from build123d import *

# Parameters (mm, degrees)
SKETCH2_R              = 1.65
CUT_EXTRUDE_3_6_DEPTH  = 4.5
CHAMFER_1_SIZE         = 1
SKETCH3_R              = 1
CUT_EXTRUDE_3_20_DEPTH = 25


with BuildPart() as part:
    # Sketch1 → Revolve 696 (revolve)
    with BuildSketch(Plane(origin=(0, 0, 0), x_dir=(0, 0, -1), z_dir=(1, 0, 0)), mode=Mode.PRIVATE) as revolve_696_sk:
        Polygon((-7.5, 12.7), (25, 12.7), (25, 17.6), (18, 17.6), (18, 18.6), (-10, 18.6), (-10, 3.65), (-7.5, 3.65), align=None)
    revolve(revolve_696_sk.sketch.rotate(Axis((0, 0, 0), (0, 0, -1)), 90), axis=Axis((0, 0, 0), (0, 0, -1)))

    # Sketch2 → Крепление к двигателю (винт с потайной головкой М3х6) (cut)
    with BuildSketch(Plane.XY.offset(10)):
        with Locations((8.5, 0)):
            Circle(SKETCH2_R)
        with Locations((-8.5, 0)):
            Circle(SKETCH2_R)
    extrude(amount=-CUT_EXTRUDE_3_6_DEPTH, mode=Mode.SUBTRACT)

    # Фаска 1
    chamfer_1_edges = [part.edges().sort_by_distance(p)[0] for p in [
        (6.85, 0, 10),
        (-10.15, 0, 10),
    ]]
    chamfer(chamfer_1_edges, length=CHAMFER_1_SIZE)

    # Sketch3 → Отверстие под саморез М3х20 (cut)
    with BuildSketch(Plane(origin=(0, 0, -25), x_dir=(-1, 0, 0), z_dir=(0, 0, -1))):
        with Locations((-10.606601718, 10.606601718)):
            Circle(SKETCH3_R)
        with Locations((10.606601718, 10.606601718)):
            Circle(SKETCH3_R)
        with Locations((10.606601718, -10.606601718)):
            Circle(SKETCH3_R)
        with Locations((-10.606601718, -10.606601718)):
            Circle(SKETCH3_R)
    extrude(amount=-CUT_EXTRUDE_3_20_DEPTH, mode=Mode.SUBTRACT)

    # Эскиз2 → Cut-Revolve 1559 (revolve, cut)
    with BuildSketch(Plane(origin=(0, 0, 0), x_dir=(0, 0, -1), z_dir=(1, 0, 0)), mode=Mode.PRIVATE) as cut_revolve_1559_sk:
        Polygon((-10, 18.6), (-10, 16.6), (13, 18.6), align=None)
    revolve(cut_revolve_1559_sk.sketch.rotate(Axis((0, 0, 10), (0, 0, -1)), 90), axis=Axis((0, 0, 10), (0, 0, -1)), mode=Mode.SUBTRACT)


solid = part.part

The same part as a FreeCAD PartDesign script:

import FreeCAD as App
import Part
import Sketcher
Q = App.Units.Quantity


def edges_at(feature, points):
    """Names of the edges that pass closest to the given points."""
    edges = feature.Shape.Edges
    near = lambda p: min(range(len(edges)), key=lambda i: edges[i].distToShape(Part.Vertex(*p))[0])
    return sorted({f"Edge{near(p) + 1}" for p in points})

doc = App.newDocument("Part")
body = doc.addObject("PartDesign::Body", "Body")

# Sketch on YZ plane
sketch1 = body.newObject("Sketcher::SketchObject", "Sketch")
sketch1.AttachmentSupport = (doc.getObject("YZ_Plane"), [""])
sketch1.MapMode = "FlatFace"
sketch1.addGeometry(Part.LineSegment(App.Vector(12.7, 7.5, 0), App.Vector(12.7, -25, 0)), False)
sketch1.addGeometry(Part.LineSegment(App.Vector(12.7, -25, 0), App.Vector(17.6, -25, 0)), False)
sketch1.addGeometry(Part.LineSegment(App.Vector(17.6, -25, 0), App.Vector(17.6, -18, 0)), False)
sketch1.addGeometry(Part.LineSegment(App.Vector(17.6, -18, 0), App.Vector(18.6, -18, 0)), False)
sketch1.addGeometry(Part.LineSegment(App.Vector(18.6, -18, 0), App.Vector(18.6, 10, 0)), False)
sketch1.addGeometry(Part.LineSegment(App.Vector(18.6, 10, 0), App.Vector(3.6, 10, 0)), False)
sketch1.addGeometry(Part.LineSegment(App.Vector(3.6, 10, 0), App.Vector(3.6, 7.5, 0)), False)
sketch1.addGeometry(Part.LineSegment(App.Vector(3.6, 7.5, 0), App.Vector(12.7, 7.5, 0)), False)
sketch1.addConstraint(Sketcher.Constraint("Coincident", 0, 2, 1, 1))
sketch1.addConstraint(Sketcher.Constraint("Coincident", 1, 2, 2, 1))
sketch1.addConstraint(Sketcher.Constraint("Coincident", 2, 2, 3, 1))
sketch1.addConstraint(Sketcher.Constraint("Coincident", 3, 2, 4, 1))
sketch1.addConstraint(Sketcher.Constraint("Coincident", 4, 2, 5, 1))
sketch1.addConstraint(Sketcher.Constraint("Coincident", 5, 2, 6, 1))
sketch1.addConstraint(Sketcher.Constraint("Coincident", 6, 2, 7, 1))
sketch1.addConstraint(Sketcher.Constraint("Coincident", 7, 2, 0, 1))
sketch1.addConstraint(Sketcher.Constraint("Vertical", 0))
sketch1.addConstraint(Sketcher.Constraint("Horizontal", 1))
sketch1.addConstraint(Sketcher.Constraint("Vertical", 2))
sketch1.addConstraint(Sketcher.Constraint("Horizontal", 3))
sketch1.addConstraint(Sketcher.Constraint("Vertical", 4))
sketch1.addConstraint(Sketcher.Constraint("Horizontal", 5))
sketch1.addConstraint(Sketcher.Constraint("Vertical", 6))
sketch1.addConstraint(Sketcher.Constraint("Horizontal", 7))
sketch1.addConstraint(Sketcher.Constraint("DistanceX", 3, 1, 3, 2, Q("1 mm")))
sketch1.addConstraint(Sketcher.Constraint("DistanceY", 2, 1, 2, 2, Q("7 mm")))
sketch1.addConstraint(Sketcher.Constraint("DistanceY", 4, 1, 4, 2, Q("28 mm")))
sketch1.addConstraint(Sketcher.Constraint("DistanceX", 1, 1, 1, 2, Q("4.9 mm")))
sketch1.addConstraint(Sketcher.Constraint("DistanceY", 0, 2, 0, 1, Q("32.5 mm")))
sketch1.addConstraint(Sketcher.Constraint("DistanceY", 0, 2, -1, 1, Q("25 mm")))
sketch1.addConstraint(Sketcher.Constraint("DistanceX", 5, 2, 5, 1, Q("14.95 mm")))
sketch1.addConstraint(Sketcher.Constraint("DistanceX", -1, 1, 0, 2, Q("12.7 mm")))
revolution = body.newObject("PartDesign::Revolution", "Revolution")
revolution.Profile = sketch1
revolution.ReferenceAxis = (sketch1, ["V_Axis"])
revolution.Angle = 360

# Sketch on XY plane
sketch2 = body.newObject("Sketcher::SketchObject", "Sketch001")
sketch2.AttachmentSupport = (doc.getObject("XY_Plane"), [""])
sketch2.MapMode = "FlatFace"
sketch2.AttachmentOffset = App.Placement(App.Vector(0, 0, 10), App.Rotation())
sketch2.addGeometry(Part.Circle(App.Vector(8.5, 0, 0), App.Vector(0, 0, 1), 1.6), False)
sketch2.addGeometry(Part.Circle(App.Vector(-8.5, 0, 0), App.Vector(0, 0, 1), 1.6), False)
sketch2.addConstraint(Sketcher.Constraint("Equal", 0, 1))
sketch2.addConstraint(Sketcher.Constraint("Symmetric", 0, 3, 1, 3, -1, 1))
sketch2.addConstraint(Sketcher.Constraint("PointOnObject", 0, 3, -1))
sketch2.addConstraint(Sketcher.Constraint("Diameter", 0, Q("3.3 mm")))
sketch2.addConstraint(Sketcher.Constraint("DistanceX", 1, 3, 0, 3, Q("17 mm")))
pocket1 = body.newObject("PartDesign::Pocket", "Pocket")
pocket1.Profile = sketch2
pocket1.Length = 4.5
doc.recompute()

chamfer = body.newObject("PartDesign::Chamfer", "Chamfer")
chamfer.Base = (pocket1, edges_at(pocket1, [(6.85, 0, 10), (-10.15, 0, 10)]))
chamfer.Size = 1

# Sketch on XY plane
sketch3 = body.newObject("Sketcher::SketchObject", "Sketch002")
sketch3.AttachmentSupport = (doc.getObject("XY_Plane"), [""])
sketch3.MapMode = "FlatFace"
sketch3.AttachmentOffset = App.Placement(App.Vector(0, 0, -25), App.Rotation())
sketch3.addGeometry(Part.Circle(App.Vector(10.6, 10.6, 0), App.Vector(0, 0, 1), 1), False)
sketch3.addGeometry(Part.Circle(App.Vector(-10.6, 10.6, 0), App.Vector(0, 0, 1), 1), False)
sketch3.addGeometry(Part.Circle(App.Vector(-10.6, -10.6, 0), App.Vector(0, 0, 1), 1), False)
sketch3.addGeometry(Part.Circle(App.Vector(10.6, -10.6, 0), App.Vector(0, 0, 1), 1), False)
sketch3.addConstraint(Sketcher.Constraint("Equal", 0, 1))
sketch3.addConstraint(Sketcher.Constraint("Equal", 1, 2))
sketch3.addConstraint(Sketcher.Constraint("Equal", 2, 3))
sketch3.addConstraint(Sketcher.Constraint("Symmetric", 0, 3, 2, 3, -1, 1))
sketch3.addConstraint(Sketcher.Constraint("Symmetric", 1, 3, 3, 3, -1, 1))
sketch3.addConstraint(Sketcher.Constraint("Symmetric", 0, 3, 1, 3, -2))
sketch3.addConstraint(Sketcher.Constraint("Diameter", 0, Q("2 mm")))
sketch3.addConstraint(Sketcher.Constraint("DistanceX", -1, 1, 0, 3, Q("10.606602 mm")))
sketch3.addConstraint(Sketcher.Constraint("DistanceY", -1, 1, 0, 3, Q("10.606602 mm")))
pocket2 = body.newObject("PartDesign::Pocket", "Pocket001")
pocket2.Profile = sketch3
pocket2.Length = 25
pocket2.Reversed = True

# Sketch on YZ plane
sketch4 = body.newObject("Sketcher::SketchObject", "Sketch003")
sketch4.AttachmentSupport = (doc.getObject("YZ_Plane"), [""])
sketch4.MapMode = "FlatFace"
sketch4.addGeometry(Part.LineSegment(App.Vector(18.6, 10, 0), App.Vector(16.6, 10, 0)), False)
sketch4.addGeometry(Part.LineSegment(App.Vector(16.6, 10, 0), App.Vector(18.6, -13, 0)), False)
sketch4.addGeometry(Part.LineSegment(App.Vector(18.6, -13, 0), App.Vector(18.6, 10, 0)), False)
sketch4.addConstraint(Sketcher.Constraint("Coincident", 0, 2, 1, 1))
sketch4.addConstraint(Sketcher.Constraint("Coincident", 1, 2, 2, 1))
sketch4.addConstraint(Sketcher.Constraint("Coincident", 2, 2, 0, 1))
sketch4.addConstraint(Sketcher.Constraint("Horizontal", 0))
sketch4.addConstraint(Sketcher.Constraint("Vertical", 2))
sketch4.addConstraint(Sketcher.Constraint("DistanceX", 0, 2, 0, 1, Q("2 mm")))
sketch4.addConstraint(Sketcher.Constraint("DistanceY", 2, 1, 2, 2, Q("23 mm")))
sketch4.addConstraint(Sketcher.Constraint("DistanceY", -1, 1, 0, 2, Q("10 mm")))
sketch4.addConstraint(Sketcher.Constraint("DistanceX", -1, 1, 0, 2, Q("16.6 mm")))
groove = body.newObject("PartDesign::Groove", "Groove")
groove.Profile = sketch4
groove.ReferenceAxis = (sketch4, ["V_Axis"])
groove.Angle = 360

doc.recompute()
